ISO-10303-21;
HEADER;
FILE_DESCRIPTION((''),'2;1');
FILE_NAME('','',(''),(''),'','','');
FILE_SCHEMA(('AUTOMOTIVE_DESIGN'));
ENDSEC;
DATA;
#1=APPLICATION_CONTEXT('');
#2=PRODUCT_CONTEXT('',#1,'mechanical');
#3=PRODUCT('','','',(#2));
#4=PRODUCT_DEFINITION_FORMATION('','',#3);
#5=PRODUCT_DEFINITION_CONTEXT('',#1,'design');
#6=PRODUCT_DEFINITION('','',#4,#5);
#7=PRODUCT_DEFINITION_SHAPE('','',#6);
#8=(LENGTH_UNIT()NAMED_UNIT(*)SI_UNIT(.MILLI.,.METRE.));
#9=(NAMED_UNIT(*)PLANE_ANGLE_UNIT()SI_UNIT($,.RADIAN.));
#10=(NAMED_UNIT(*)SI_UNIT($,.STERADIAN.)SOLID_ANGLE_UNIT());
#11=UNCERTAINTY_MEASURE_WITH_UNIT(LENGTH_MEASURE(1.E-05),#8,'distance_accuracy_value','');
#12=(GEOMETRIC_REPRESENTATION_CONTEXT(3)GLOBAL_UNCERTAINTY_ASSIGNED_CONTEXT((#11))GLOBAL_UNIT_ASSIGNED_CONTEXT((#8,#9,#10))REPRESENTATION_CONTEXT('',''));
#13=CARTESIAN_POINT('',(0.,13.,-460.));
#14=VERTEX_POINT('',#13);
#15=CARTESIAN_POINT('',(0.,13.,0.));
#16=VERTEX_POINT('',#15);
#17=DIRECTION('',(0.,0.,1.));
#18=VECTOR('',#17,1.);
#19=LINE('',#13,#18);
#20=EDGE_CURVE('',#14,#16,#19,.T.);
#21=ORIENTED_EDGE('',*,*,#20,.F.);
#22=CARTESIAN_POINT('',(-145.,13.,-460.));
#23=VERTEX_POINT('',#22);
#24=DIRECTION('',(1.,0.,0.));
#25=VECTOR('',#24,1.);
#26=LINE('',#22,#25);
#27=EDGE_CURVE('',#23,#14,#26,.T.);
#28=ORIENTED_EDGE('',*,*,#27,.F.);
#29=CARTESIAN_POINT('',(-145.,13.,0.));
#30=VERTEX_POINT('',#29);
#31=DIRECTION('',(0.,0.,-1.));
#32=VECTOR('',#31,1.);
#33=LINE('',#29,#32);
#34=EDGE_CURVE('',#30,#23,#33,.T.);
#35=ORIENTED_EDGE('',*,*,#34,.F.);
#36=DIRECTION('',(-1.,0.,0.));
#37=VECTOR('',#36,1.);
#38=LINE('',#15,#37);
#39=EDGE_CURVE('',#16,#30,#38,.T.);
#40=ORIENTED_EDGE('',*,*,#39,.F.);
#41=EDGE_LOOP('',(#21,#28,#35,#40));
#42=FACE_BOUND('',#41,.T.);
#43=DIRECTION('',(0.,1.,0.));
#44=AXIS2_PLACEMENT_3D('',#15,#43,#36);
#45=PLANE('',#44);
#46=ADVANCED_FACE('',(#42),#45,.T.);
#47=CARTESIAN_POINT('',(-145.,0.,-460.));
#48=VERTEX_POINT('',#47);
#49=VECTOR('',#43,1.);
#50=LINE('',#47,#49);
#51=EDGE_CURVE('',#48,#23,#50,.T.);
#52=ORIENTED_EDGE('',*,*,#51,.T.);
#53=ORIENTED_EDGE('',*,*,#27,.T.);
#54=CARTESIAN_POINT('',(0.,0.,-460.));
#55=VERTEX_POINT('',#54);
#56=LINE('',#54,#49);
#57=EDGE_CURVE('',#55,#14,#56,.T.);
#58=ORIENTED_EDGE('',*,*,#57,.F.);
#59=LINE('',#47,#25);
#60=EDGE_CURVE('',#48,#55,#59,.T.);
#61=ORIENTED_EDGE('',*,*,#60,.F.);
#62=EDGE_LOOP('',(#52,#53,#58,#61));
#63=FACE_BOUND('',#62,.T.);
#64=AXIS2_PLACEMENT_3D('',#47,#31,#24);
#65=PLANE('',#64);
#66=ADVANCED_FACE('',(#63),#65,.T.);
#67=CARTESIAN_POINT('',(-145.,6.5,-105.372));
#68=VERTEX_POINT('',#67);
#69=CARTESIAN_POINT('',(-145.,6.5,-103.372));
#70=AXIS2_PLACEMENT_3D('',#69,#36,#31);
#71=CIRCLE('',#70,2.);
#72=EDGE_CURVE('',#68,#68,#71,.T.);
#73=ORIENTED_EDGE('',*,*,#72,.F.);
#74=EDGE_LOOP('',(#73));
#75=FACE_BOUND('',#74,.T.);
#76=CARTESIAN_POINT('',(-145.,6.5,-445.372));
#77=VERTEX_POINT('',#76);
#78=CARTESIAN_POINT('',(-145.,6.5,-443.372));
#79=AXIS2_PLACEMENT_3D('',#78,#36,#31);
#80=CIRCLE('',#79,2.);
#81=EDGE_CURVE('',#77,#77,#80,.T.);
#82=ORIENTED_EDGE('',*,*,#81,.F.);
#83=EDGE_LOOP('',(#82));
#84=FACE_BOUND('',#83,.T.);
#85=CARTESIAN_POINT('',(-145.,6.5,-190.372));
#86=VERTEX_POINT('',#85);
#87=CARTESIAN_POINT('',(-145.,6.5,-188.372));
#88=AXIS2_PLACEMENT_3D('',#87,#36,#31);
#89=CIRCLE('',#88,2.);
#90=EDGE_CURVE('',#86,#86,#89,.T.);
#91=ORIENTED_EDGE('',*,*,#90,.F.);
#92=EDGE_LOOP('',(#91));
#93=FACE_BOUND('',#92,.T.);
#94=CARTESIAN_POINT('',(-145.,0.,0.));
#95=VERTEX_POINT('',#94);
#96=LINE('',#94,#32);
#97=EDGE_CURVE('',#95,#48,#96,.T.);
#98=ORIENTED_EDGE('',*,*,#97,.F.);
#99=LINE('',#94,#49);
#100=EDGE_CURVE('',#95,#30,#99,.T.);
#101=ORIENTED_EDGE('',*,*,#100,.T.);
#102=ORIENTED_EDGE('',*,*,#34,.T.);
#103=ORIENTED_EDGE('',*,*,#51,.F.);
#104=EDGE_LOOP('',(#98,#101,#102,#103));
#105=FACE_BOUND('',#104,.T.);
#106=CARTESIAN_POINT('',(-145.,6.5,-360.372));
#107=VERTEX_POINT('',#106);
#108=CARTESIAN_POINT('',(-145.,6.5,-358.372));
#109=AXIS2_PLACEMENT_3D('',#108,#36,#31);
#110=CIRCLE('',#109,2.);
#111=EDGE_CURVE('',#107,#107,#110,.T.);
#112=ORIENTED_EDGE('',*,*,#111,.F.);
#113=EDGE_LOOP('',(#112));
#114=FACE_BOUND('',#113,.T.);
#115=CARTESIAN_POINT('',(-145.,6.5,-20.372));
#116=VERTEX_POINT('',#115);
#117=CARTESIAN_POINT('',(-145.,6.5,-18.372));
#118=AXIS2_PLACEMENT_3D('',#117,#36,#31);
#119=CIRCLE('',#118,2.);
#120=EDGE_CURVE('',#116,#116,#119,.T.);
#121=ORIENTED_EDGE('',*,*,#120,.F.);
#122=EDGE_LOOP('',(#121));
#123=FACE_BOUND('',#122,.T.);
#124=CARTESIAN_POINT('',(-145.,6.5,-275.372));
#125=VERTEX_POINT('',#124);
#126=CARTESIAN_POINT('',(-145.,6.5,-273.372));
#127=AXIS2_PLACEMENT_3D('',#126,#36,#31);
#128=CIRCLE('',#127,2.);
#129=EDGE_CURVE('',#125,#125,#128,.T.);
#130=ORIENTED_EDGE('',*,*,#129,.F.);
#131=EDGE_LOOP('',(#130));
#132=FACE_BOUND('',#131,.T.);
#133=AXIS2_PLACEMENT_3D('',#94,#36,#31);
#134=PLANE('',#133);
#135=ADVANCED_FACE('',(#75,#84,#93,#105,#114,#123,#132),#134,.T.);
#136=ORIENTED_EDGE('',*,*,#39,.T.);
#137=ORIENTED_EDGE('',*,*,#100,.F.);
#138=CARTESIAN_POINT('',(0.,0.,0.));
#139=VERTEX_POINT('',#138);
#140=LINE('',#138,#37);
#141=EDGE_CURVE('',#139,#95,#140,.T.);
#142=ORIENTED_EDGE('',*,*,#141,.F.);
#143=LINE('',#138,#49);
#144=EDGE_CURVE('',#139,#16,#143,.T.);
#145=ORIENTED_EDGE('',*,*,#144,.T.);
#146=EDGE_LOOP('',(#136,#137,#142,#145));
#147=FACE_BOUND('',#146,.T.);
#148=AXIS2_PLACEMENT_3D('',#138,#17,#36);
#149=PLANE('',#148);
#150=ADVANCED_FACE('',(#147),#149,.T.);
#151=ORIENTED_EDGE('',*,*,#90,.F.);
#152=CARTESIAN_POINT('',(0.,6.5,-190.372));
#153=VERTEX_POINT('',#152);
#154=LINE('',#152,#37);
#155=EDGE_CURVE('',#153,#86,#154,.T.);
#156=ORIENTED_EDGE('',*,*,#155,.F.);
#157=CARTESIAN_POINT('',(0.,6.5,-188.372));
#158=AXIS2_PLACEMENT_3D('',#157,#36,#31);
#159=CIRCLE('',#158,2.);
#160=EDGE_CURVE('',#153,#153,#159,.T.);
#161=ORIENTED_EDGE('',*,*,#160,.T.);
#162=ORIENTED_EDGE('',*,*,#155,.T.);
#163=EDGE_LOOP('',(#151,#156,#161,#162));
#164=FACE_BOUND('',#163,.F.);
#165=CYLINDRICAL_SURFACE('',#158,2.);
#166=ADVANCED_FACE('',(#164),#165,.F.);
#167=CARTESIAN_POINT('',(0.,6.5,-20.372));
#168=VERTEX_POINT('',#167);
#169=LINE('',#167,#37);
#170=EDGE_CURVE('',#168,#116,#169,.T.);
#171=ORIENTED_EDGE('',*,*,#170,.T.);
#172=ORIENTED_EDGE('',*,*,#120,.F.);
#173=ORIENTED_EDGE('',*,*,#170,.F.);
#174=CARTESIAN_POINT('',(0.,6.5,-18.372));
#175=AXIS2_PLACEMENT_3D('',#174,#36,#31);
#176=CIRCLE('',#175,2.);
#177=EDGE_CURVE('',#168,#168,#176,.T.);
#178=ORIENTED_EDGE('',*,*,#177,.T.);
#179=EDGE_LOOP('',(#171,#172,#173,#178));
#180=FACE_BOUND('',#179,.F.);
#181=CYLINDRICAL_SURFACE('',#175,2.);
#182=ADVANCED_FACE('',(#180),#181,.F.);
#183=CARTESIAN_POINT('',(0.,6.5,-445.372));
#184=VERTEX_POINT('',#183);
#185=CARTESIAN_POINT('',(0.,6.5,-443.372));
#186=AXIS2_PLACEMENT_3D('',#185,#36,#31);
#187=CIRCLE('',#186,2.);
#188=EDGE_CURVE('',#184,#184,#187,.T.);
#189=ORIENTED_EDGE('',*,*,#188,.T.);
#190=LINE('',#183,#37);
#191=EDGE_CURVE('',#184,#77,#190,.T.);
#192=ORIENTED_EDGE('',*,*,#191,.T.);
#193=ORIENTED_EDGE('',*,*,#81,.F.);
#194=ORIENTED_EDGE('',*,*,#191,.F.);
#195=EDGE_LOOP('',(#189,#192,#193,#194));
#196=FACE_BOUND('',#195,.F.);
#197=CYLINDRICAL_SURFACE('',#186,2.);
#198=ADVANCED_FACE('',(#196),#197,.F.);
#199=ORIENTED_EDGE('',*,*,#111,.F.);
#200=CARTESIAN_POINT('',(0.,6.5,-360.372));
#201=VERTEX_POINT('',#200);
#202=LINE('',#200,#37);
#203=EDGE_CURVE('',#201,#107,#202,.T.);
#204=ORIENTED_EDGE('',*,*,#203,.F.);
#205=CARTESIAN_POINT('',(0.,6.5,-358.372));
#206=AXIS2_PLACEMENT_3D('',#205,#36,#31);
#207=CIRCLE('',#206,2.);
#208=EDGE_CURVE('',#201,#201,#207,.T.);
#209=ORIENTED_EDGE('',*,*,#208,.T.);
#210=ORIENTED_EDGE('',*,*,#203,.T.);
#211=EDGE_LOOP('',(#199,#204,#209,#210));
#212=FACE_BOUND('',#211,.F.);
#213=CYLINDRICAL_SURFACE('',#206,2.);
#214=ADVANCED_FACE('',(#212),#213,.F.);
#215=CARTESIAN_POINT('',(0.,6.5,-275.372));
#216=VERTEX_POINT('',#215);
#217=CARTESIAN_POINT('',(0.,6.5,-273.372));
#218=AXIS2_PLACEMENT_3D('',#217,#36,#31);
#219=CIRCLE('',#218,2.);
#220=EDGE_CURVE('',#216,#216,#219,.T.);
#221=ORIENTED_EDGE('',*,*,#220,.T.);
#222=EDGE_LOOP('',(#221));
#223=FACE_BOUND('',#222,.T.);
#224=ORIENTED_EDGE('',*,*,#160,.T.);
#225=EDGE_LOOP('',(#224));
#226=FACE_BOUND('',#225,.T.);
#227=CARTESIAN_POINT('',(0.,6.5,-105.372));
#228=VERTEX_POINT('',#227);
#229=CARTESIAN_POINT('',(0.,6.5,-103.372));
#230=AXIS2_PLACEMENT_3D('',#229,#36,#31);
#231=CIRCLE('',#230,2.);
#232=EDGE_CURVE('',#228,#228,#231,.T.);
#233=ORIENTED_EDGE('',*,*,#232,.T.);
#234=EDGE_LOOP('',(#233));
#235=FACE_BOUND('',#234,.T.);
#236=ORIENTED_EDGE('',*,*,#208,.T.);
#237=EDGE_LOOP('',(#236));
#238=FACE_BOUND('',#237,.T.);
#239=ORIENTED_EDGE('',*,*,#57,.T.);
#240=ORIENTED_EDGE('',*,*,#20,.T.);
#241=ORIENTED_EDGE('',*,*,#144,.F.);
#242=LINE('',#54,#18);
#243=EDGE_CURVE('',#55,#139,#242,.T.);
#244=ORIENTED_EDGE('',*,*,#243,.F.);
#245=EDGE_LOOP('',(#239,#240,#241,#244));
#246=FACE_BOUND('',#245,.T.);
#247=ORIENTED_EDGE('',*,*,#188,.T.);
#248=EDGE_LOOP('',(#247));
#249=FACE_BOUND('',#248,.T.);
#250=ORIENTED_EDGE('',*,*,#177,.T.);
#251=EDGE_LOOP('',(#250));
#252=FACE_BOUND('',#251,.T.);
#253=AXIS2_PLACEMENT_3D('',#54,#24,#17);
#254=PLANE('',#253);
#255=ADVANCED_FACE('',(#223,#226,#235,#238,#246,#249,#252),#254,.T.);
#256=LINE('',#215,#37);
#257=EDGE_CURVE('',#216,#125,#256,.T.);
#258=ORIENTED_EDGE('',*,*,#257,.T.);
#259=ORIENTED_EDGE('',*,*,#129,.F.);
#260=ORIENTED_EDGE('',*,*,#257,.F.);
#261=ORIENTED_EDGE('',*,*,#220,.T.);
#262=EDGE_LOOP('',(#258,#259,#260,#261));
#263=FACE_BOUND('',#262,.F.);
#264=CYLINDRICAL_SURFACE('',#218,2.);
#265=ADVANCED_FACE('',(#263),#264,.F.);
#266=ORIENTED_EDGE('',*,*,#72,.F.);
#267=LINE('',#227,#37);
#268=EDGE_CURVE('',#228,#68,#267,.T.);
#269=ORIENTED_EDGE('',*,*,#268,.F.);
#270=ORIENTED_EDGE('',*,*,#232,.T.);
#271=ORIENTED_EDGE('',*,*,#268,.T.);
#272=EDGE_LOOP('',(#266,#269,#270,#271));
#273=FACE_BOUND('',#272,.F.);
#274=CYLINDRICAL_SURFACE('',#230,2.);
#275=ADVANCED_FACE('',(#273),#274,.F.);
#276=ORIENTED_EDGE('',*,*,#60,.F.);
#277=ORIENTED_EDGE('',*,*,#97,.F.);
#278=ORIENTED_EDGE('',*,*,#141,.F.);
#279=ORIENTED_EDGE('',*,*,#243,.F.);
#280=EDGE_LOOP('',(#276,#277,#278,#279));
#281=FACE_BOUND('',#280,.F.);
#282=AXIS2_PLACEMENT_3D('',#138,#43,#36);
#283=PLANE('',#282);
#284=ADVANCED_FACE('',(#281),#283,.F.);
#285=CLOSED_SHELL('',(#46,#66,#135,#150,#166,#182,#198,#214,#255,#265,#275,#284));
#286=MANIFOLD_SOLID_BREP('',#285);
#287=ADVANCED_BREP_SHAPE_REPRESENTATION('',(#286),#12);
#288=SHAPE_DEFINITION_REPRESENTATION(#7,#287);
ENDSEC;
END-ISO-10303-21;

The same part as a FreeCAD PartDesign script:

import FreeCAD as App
import Part
import Sketcher
Q = App.Units.Quantity


def add_polygon(sketch, points):
    """Adds a closed chain of lines whose ends are joined by coincident constraints."""
    first, n = sketch.GeometryCount, len(points)
    for a, b in zip(points, points[1:] + points[:1]):
        sketch.addGeometry(Part.LineSegment(App.Vector(*a, 0), App.Vector(*b, 0)), False)
    for i in range(n):
        sketch.addConstraint(Sketcher.Constraint("Coincident", first + i, 2, first + (i + 1) % n, 1))

doc = App.newDocument("Part")
body = doc.addObject("PartDesign::Body", "Body")

# Sketch on XZ plane
sketch1 = body.newObject("Sketcher::SketchObject", "Sketch")
sketch1.AttachmentSupport = (doc.getObject("XZ_Plane"), [""])
sketch1.MapMode = "FlatFace"
add_polygon(sketch1, [(-145, 0), (0, 0), (0, -460), (-145, -460)])  # lines 0-3
sketch1.addConstraint([
    Sketcher.Constraint("Horizontal", 0),
    Sketcher.Constraint("Vertical", 1),
    Sketcher.Constraint("Horizontal", 2),
    Sketcher.Constraint("Vertical", 3),
    Sketcher.Constraint("Coincident", 0, 2, -1, 1),
    Sketcher.Constraint("DistanceX", 0, 1, 0, 2, Q("145 mm")),
    Sketcher.Constraint("DistanceY", 1, 2, 1, 1, Q("460 mm")),
])
pad1 = body.newObject("PartDesign::Pad", "Pad")
pad1.Profile = sketch1
pad1.Length = 13
pad1.Reversed = True

# Sketch on YZ plane
sketch2 = body.newObject("Sketcher::SketchObject", "Sketch001")
sketch2.AttachmentSupport = (doc.getObject("YZ_Plane"), [""])
sketch2.MapMode = "FlatFace"
sketch2.addGeometry(Part.Circle(App.Vector(6.5, -18.4, 0), App.Vector(0, 0, 1), 2), False)
sketch2.addConstraint([
    Sketcher.Constraint("Diameter", 0, Q("4 mm")),
    Sketcher.Constraint("DistanceX", -1, 1, 0, 3, Q("6.5 mm")),
    Sketcher.Constraint("DistanceY", 0, 3, -1, 1, Q("18.372 mm")),
])
doc.recompute()
hole = body.newObject("PartDesign::Hole", "Hole")
hole.Profile = sketch2
hole.ThreadType = "None"
hole.Diameter = 4
hole.DepthType = "ThroughAll"
doc.recompute()

linearpattern = body.newObject("PartDesign::LinearPattern", "LinearPattern")
linearpattern.Originals = [hole]
linearpattern.Direction = (doc.getObject("Z_Axis"), [""])
linearpattern.Mode = "offset"
linearpattern.Offset = 85
linearpattern.Occurrences = 6
linearpattern.Reversed = True
body.Tip = linearpattern

doc.recompute()
